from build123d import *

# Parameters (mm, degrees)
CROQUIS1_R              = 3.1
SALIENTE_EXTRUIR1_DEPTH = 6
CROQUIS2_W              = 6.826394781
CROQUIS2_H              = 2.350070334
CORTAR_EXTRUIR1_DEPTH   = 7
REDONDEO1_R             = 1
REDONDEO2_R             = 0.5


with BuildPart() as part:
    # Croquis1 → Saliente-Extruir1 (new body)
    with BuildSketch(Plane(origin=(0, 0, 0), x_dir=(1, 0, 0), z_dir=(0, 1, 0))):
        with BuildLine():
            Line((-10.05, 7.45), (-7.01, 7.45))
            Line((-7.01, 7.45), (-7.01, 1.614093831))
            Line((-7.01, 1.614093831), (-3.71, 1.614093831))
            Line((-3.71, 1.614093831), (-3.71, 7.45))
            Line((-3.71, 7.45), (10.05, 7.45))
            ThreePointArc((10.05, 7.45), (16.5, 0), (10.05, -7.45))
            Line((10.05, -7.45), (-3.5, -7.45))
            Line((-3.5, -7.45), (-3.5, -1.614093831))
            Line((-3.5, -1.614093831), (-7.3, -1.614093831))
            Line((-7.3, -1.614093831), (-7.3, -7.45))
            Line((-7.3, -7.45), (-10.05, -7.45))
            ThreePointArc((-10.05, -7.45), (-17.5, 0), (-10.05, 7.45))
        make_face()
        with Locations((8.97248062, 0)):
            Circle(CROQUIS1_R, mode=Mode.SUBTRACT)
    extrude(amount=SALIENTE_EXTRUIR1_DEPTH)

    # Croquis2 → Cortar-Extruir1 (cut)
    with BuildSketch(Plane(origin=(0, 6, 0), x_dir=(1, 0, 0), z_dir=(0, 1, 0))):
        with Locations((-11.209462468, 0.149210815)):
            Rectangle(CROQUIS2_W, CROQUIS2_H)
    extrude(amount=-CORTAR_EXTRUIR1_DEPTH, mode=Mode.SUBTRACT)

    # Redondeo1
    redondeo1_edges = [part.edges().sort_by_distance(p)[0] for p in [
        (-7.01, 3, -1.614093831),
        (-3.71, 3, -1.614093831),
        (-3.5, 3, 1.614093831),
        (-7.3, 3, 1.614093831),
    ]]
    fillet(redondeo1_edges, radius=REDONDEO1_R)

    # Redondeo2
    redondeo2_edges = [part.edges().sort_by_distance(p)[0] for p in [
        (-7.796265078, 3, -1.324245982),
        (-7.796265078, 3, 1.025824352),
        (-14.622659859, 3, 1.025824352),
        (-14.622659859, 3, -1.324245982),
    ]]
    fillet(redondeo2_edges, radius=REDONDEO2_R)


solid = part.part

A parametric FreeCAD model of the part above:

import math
import FreeCAD as App
import Part
import Sketcher

V = App.Vector
Q = App.Units.Quantity


def edges_at(feature, points):
    """Names of the edges that pass closest to the given points."""
    edges = feature.Shape.Edges
    near = lambda p: min(range(len(edges)), key=lambda i: edges[i].distToShape(Part.Vertex(*p))[0])
    return sorted({f"Edge{near(p) + 1}" for p in points})

doc = App.newDocument("Part")
body = doc.addObject("PartDesign::Body", "Body")

# Sketch on XZ plane
sketch1 = body.newObject("Sketcher::SketchObject", "Sketch")
sketch1.AttachmentSupport = (doc.getObject("XZ_Plane"), [""])
sketch1.MapMode = "FlatFace"
sketch1.addGeometry(Part.LineSegment(V(-7, -7.5, 0), V(-10.1, -7.5, 0)), False)
sketch1.addGeometry(Part.ArcOfCircle(Part.Circle(V(-10.1, 0, 0), V(0, 0, 1), 7.5), math.radians(90), math.radians(270)), False)
sketch1.addGeometry(Part.LineSegment(V(-10.1, 7.5, 0), V(-7.3, 7.5, 0)), False)
sketch1.addGeometry(Part.LineSegment(V(-7.3, 7.5, 0), V(-7.3, 1.6, 0)), False)
sketch1.addGeometry(Part.LineSegment(V(-7.3, 1.6, 0), V(-3.5, 1.6, 0)), False)
sketch1.addGeometry(Part.LineSegment(V(-3.5, 1.6, 0), V(-3.5, 7.5, 0)), False)
sketch1.addGeometry(Part.LineSegment(V(-3.5, 7.5, 0), V(10.1, 7.5, 0)), False)
sketch1.addGeometry(Part.ArcOfCircle(Part.Circle(V(9, 0, 0), V(0, 0, 1), 7.5), math.radians(-82), math.radians(82)), False)
sketch1.addGeometry(Part.LineSegment(V(10.1, -7.5, 0), V(-3.7, -7.5, 0)), False)
sketch1.addGeometry(Part.LineSegment(V(-3.7, -7.5, 0), V(-3.7, -1.6, 0)), False)
sketch1.addGeometry(Part.LineSegment(V(-3.7, -1.6, 0), V(-7, -1.6, 0)), False)
sketch1.addGeometry(Part.LineSegment(V(-7, -1.6, 0), V(-7, -7.5, 0)), False)
sketch1.addGeometry(Part.Circle(V(9, 0, 0), V(0, 0, 1), 3.1), False)
sketch1.addConstraint(Sketcher.Constraint("Tangent", 0, 2, 1, 2))
sketch1.addConstraint(Sketcher.Constraint("Tangent", 1, 1, 2, 1))
sketch1.addConstraint(Sketcher.Constraint("Coincident", 2, 2, 3, 1))
sketch1.addConstraint(Sketcher.Constraint("Coincident", 3, 2, 4, 1))
sketch1.addConstraint(Sketcher.Constraint("Coincident", 4, 2, 5, 1))
sketch1.addConstraint(Sketcher.Constraint("Coincident", 5, 2, 6, 1))
sketch1.addConstraint(Sketcher.Constraint("Coincident", 6, 2, 7, 2))
sketch1.addConstraint(Sketcher.Constraint("Coincident", 7, 1, 8, 1))
sketch1.addConstraint(Sketcher.Constraint("Coincident", 8, 2, 9, 1))
sketch1.addConstraint(Sketcher.Constraint("Coincident", 9, 2, 10, 1))
sketch1.addConstraint(Sketcher.Constraint("Coincident", 10, 2, 11, 1))
sketch1.addConstraint(Sketcher.Constraint("Coincident", 11, 2, 0, 1))
sketch1.addConstraint(Sketcher.Constraint("Horizontal", 0))
sketch1.addConstraint(Sketcher.Constraint("Horizontal", 2))
sketch1.addConstraint(Sketcher.Constraint("Vertical", 3))
sketch1.addConstraint(Sketcher.Constraint("Horizontal", 4))
sketch1.addConstraint(Sketcher.Constraint("Vertical", 5))
sketch1.addConstraint(Sketcher.Constraint("Horizontal", 6))
sketch1.addConstraint(Sketcher.Constraint("Horizontal", 8))
sketch1.addConstraint(Sketcher.Constraint("Vertical", 9))
sketch1.addConstraint(Sketcher.Constraint("Horizontal", 10))
sketch1.addConstraint(Sketcher.Constraint("Vertical", 11))
sketch1.addConstraint(Sketcher.Constraint("Coincident", 12, 3, 7, 3))
sketch1.addConstraint(Sketcher.Constraint("Symmetric", 0, 2, 6, 2, -1, 1))
sketch1.addConstraint(Sketcher.Constraint("Symmetric", 1, 1, 7, 1, -1, 1))
sketch1.addConstraint(Sketcher.Constraint("PointOnObject", 1, 3, -1))
sketch1.addConstraint(Sketcher.Constraint("Equal", 5, 9))
sketch1.addConstraint(Sketcher.Constraint("Diameter", 12, Q("6.2 mm")))
sketch1.addConstraint(Sketcher.Constraint("Radius", 1, Q("7.45 mm")))
sketch1.addConstraint(Sketcher.Constraint("DistanceX", 4, 1, 4, 2, Q("3.8 mm")))
sketch1.addConstraint(Sketcher.Constraint("DistanceX", 10, 2, 10, 1, Q("3.3 mm")))
sketch1.addConstraint(Sketcher.Constraint("DistanceX", 0, 2, 0, 1, Q("3.04 mm")))
sketch1.addConstraint(Sketcher.Constraint("DistanceX", 2, 1, 2, 2, Q("2.75 mm")))
sketch1.addConstraint(Sketcher.Constraint("DistanceX", 6, 1, 6, 2, Q("13.55 mm")))
sketch1.addConstraint(Sketcher.Constraint("Radius", 7, Q("7.527519 mm")))
sketch1.addConstraint(Sketcher.Constraint("DistanceY", 3, 2, 3, 1, Q("5.835906 mm")))
pad1 = body.newObject("PartDesign::Pad", "Pad")
pad1.Profile = sketch1
pad1.Length = 6
pad1.Reversed = True

# Sketch on XZ plane
sketch2 = body.newObject("Sketcher::SketchObject", "Sketch001")
sketch2.AttachmentSupport = (doc.getObject("XZ_Plane"), [""])
sketch2.MapMode = "FlatFace"
sketch2.AttachmentOffset = App.Placement(V(0, 0, -6), App.Rotation())
sketch2.addGeometry(Part.LineSegment(V(-14.6, -1.3, 0), V(-14.6, 1, 0)), False)
sketch2.addGeometry(Part.LineSegment(V(-14.6, 1, 0), V(-7.8, 1, 0)), False)
sketch2.addGeometry(Part.LineSegment(V(-7.8, 1, 0), V(-7.8, -1.3, 0)), False)
sketch2.addGeometry(Part.LineSegment(V(-7.8, -1.3, 0), V(-14.6, -1.3, 0)), False)
sketch2.addConstraint(Sketcher.Constraint("Coincident", 0, 2, 1, 1))
sketch2.addConstraint(Sketcher.Constraint("Coincident", 1, 2, 2, 1))
sketch2.addConstraint(Sketcher.Constraint("Coincident", 2, 2, 3, 1))
sketch2.addConstraint(Sketcher.Constraint("Coincident", 3, 2, 0, 1))
sketch2.addConstraint(Sketcher.Constraint("Vertical", 0))
sketch2.addConstraint(Sketcher.Constraint("Horizontal", 1))
sketch2.addConstraint(Sketcher.Constraint("Vertical", 2))
sketch2.addConstraint(Sketcher.Constraint("Horizontal", 3))
sketch2.addConstraint(Sketcher.Constraint("DistanceY", 0, 1, 0, 2, Q("2.35007 mm")))
sketch2.addConstraint(Sketcher.Constraint("DistanceX", 1, 1, 1, 2, Q("6.826395 mm")))
sketch2.addConstraint(Sketcher.Constraint("DistanceX", 0, 2, -1, 1, Q("14.62266 mm")))
sketch2.addConstraint(Sketcher.Constraint("DistanceY", -1, 1, 0, 2, Q("1.025824 mm")))
pocket1 = body.newObject("PartDesign::Pocket", "Pocket")
pocket1.Profile = sketch2
pocket1.Length = 7
pocket1.Reversed = True
doc.recompute()

fillet = body.newObject("PartDesign::Fillet", "Fillet")
fillet.Base = (pocket1, edges_at(pocket1, [
    (-7.01, 3, -1.614),
    (-3.71, 3, -1.614),
    (-3.5, 3, 1.614),
    (-7.3, 3, 1.614),
]))
fillet.Radius = 1
doc.recompute()

fillet2 = body.newObject("PartDesign::Fillet", "Fillet001")
fillet2.Base = (fillet, edges_at(fillet, [
    (-7.796, 3, -1.324),
    (-7.796, 3, 1.026),
    (-14.623, 3, 1.026),
    (-14.623, 3, -1.324),
]))
fillet2.Radius = 0.5

doc.recompute()
